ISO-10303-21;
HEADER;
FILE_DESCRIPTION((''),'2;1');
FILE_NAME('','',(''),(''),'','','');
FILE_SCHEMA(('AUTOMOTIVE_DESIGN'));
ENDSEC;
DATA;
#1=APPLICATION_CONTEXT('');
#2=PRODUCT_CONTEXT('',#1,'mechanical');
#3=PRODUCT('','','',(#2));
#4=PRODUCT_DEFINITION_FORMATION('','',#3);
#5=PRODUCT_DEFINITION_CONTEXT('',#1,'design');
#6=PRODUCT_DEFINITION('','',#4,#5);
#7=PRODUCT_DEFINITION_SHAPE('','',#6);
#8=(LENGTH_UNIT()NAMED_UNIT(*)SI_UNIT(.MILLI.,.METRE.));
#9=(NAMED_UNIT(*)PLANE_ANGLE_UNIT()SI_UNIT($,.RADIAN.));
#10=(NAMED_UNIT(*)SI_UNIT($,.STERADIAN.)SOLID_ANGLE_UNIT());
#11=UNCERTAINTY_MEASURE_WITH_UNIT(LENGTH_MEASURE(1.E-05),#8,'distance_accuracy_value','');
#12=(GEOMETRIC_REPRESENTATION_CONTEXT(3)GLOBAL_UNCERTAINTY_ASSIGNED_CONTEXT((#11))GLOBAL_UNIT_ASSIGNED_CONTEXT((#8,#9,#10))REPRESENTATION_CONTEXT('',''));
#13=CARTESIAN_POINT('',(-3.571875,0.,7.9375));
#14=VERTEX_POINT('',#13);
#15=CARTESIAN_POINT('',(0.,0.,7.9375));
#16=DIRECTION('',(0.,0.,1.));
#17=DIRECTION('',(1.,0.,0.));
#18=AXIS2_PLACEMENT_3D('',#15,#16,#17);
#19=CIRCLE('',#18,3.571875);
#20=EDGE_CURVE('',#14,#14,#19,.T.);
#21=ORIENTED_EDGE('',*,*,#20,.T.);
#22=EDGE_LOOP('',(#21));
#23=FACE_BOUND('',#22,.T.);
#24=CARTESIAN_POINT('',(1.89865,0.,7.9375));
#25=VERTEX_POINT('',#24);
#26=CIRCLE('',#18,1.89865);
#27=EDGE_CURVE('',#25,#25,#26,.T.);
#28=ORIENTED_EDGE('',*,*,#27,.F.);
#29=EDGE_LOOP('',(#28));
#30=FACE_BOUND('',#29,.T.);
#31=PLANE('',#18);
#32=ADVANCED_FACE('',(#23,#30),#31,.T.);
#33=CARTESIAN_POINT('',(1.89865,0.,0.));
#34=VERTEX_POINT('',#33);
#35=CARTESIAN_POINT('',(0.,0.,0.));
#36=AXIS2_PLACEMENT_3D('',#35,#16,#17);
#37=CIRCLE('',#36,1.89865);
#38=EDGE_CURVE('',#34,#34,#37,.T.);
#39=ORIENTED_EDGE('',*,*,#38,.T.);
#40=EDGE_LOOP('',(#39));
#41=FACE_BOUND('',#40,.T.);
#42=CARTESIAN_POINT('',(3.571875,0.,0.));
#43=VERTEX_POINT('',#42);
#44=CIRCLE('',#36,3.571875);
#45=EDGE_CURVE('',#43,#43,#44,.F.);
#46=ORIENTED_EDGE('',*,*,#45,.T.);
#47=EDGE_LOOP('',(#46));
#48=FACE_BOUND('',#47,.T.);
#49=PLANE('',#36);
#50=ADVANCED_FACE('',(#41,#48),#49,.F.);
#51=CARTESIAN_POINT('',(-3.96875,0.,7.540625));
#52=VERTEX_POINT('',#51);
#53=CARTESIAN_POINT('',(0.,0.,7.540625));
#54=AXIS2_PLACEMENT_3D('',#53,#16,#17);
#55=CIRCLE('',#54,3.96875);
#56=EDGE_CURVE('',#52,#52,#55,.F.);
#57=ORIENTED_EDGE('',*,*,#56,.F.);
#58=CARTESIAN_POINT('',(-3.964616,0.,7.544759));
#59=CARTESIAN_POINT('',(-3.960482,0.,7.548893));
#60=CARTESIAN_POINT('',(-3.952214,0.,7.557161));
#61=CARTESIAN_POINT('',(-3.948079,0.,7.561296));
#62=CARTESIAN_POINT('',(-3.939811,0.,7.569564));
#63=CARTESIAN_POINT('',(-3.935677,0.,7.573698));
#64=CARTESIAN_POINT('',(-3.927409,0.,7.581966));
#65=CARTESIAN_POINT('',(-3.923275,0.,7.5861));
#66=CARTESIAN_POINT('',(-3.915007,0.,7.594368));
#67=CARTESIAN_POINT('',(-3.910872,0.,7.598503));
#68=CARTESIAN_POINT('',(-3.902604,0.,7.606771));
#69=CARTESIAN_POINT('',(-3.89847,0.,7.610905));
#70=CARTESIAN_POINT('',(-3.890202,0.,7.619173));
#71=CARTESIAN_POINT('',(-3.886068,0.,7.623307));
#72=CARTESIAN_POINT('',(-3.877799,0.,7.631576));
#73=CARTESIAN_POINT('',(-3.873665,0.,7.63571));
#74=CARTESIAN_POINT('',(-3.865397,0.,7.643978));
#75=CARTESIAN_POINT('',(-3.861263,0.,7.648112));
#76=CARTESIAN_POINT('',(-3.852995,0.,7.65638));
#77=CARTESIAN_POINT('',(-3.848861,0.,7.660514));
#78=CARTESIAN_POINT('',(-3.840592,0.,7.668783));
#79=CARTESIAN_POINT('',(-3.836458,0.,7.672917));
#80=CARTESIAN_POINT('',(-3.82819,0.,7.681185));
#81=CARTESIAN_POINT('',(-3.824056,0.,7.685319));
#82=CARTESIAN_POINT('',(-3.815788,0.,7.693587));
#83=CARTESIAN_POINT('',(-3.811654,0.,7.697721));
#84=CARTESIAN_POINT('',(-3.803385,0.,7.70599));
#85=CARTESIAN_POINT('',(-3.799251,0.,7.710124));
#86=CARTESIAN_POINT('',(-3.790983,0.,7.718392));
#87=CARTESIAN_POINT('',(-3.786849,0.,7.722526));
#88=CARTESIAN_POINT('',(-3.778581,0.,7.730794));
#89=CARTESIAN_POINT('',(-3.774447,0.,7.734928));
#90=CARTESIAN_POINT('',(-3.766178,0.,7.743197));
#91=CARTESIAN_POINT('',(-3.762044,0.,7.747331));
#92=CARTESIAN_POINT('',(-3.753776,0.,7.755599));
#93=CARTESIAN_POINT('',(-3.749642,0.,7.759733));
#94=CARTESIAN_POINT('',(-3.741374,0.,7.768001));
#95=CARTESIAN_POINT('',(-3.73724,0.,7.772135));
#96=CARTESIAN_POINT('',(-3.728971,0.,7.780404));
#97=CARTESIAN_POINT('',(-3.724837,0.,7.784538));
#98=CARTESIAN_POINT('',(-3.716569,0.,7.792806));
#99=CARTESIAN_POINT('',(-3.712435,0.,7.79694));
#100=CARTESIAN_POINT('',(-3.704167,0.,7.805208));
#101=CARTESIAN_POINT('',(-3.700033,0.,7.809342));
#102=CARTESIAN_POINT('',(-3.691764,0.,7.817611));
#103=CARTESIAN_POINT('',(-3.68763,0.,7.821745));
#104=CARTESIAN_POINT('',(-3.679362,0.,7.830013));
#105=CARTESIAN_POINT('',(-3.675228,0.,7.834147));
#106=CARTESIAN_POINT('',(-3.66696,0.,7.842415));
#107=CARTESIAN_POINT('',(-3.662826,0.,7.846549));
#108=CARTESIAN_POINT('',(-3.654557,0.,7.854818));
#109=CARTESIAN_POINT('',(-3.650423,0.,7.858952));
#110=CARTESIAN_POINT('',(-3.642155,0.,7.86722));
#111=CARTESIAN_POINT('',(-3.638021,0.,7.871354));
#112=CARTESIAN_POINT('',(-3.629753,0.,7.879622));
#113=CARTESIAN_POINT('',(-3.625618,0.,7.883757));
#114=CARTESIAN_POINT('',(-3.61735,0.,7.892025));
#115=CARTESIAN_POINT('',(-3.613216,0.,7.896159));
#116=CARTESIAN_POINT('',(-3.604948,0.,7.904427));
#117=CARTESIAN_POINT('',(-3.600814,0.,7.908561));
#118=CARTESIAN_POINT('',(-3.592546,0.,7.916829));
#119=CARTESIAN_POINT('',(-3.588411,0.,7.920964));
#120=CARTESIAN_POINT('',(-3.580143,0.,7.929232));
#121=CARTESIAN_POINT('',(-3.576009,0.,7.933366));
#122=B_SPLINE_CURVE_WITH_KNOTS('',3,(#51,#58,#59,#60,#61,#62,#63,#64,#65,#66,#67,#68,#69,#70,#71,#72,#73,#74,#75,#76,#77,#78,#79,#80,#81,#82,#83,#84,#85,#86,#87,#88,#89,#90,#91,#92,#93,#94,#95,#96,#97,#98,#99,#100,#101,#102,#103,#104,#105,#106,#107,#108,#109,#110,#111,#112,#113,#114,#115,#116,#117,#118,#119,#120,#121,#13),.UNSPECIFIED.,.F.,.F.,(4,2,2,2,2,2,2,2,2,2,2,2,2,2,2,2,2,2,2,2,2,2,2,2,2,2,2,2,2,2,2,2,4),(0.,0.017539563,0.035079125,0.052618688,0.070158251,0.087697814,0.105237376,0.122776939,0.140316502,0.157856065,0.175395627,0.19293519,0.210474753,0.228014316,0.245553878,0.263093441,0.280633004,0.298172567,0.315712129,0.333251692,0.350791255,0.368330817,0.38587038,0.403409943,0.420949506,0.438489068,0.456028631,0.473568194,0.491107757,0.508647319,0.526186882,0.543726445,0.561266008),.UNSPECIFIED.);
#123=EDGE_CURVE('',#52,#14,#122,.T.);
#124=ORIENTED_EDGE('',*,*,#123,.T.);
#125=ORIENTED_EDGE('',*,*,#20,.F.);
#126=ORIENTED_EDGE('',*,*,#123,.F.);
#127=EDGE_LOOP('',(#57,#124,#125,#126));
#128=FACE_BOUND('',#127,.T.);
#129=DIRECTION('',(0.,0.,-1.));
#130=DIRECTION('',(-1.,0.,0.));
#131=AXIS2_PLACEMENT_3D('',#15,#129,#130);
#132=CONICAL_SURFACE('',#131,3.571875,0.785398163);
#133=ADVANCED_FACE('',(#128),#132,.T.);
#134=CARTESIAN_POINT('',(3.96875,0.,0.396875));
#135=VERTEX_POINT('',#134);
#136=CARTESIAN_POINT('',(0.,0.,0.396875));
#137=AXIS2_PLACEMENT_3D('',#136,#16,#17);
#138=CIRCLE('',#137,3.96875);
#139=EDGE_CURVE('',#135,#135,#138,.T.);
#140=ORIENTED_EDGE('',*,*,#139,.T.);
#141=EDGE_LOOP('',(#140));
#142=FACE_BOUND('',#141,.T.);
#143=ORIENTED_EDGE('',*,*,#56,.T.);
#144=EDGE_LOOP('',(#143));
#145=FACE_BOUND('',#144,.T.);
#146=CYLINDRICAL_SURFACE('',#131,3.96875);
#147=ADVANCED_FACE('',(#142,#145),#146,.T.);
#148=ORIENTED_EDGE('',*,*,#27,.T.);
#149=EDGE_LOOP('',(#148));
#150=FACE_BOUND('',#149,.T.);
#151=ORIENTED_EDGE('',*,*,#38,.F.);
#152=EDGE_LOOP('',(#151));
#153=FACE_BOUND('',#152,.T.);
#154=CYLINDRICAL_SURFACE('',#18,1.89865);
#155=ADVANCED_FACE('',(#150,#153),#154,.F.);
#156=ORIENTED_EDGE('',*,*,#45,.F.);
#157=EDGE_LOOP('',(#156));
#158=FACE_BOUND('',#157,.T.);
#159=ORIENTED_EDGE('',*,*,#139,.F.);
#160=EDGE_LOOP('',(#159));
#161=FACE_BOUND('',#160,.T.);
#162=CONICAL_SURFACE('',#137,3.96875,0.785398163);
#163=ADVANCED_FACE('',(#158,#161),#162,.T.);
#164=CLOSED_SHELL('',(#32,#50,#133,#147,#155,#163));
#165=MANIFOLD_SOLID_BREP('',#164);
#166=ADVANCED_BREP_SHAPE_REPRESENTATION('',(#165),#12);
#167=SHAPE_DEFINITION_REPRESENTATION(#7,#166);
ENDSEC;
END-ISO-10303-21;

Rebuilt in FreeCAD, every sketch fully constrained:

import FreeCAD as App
import Part
import Sketcher
from FreeCAD import Vector
Q = App.Units.Quantity


def edges_at(feature, points):
    """Names of the edges that pass closest to the given points."""
    edges = feature.Shape.Edges
    near = lambda p: min(range(len(edges)), key=lambda i: edges[i].distToShape(Part.Vertex(*p))[0])
    return sorted({f"Edge{near(p) + 1}" for p in points})

doc = App.newDocument("Part")
params = doc.addObject("Spreadsheet::Sheet", "Params")
for row, (alias, value) in enumerate([
    ("sketch1_diameter", "0.3125 in"),
    ("pad1_length", "0.3125 in"),
    ("chamfer_size", "0.015625 in"),
    ("hole_diameter", "0.1495 in"),
], start=1):
    params.set(f"A{row}", alias)
    params.set(f"B{row}", "=" + value)
    params.setAlias(f"B{row}", alias)

body = doc.addObject("PartDesign::Body", "Body")

# Sketch on XY plane
sketch1 = doc.addObject("Sketcher::SketchObject", "Sketch")
body.addObject(sketch1)
sketch1.AttachmentSupport = (doc.XY_Plane, [""])
sketch1.MapMode = "FlatFace"
sketch1.addGeometry(Part.Circle(Vector(0, 0, 0), Vector(0, 0, 1), 4), False)
sketch1.addConstraint([
    Sketcher.Constraint("Coincident", 0, 3, -1, 1),
    Sketcher.Constraint("Diameter", 0, Q("0.3125 in")),
])
sketch1.setExpression("Constraints[1]", "Params.sketch1_diameter")
pad1 = doc.addObject("PartDesign::Pad", "Pad")
body.addObject(pad1)
pad1.Profile = sketch1
pad1.setExpression("Length", "Params.pad1_length")
doc.recompute()

chamfer = doc.addObject("PartDesign::Chamfer", "Chamfer")
body.addObject(chamfer)
chamfer.Base = (pad1, edges_at(pad1, [(-3.969, 0, 0), (-3.969, 0, 7.938)]))
chamfer.setExpression("Size", "Params.chamfer_size")

# Sketch on XY plane
sketch2 = doc.addObject("Sketcher::SketchObject", "Sketch001")
body.addObject(sketch2)
sketch2.AttachmentSupport = (doc.XY_Plane, [""])
sketch2.MapMode = "FlatFace"
sketch2.AttachmentOffset = App.Placement(Vector(0, 0, 0.3125 * 25.4), App.Rotation())
sketch2.addGeometry(Part.Circle(Vector(0, 0, 0), Vector(0, 0, 1), 1.9), False)
sketch2.addConstraint([
    Sketcher.Constraint("Coincident", 0, 3, -1, 1),
    Sketcher.Constraint("Diameter", 0, Q("0.1495 in")),
])
doc.recompute()
hole = doc.addObject("PartDesign::Hole", "Hole")
body.addObject(hole)
hole.Profile = sketch2
hole.ThreadType = "None"
hole.setExpression("Diameter", "Params.hole_diameter")
hole.DepthType = "ThroughAll"

doc.recompute()
